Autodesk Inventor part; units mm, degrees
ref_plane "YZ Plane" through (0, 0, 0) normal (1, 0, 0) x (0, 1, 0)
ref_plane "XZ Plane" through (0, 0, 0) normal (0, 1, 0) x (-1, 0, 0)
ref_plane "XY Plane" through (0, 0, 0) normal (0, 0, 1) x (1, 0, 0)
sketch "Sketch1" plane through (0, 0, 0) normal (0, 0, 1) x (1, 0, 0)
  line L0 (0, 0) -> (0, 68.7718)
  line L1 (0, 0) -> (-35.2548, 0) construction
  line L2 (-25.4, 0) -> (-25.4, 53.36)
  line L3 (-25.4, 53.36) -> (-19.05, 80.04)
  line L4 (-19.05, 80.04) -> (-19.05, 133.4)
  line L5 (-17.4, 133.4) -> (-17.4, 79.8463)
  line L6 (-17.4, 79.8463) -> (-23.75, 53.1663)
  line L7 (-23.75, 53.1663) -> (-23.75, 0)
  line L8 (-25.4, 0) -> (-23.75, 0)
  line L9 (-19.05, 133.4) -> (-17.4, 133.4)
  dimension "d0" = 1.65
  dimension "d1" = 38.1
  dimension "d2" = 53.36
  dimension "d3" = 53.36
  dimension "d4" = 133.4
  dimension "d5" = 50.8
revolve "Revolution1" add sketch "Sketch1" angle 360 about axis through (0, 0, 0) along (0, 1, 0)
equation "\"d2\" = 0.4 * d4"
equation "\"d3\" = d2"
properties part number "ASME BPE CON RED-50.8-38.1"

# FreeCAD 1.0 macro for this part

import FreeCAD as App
import Part
import Sketcher
from FreeCAD import Vector
Q = App.Units.Quantity


def add_polygon(sketch, points):
    """Adds a closed chain of lines whose ends are joined by coincident constraints."""
    first, n = sketch.GeometryCount, len(points)
    for a, b in zip(points, points[1:] + points[:1]):
        sketch.addGeometry(Part.LineSegment(App.Vector(*a, 0), App.Vector(*b, 0)), False)
    for i in range(n):
        sketch.addConstraint(Sketcher.Constraint("Coincident", first + i, 2, first + (i + 1) % n, 1))

doc = App.newDocument("Part")
body = doc.addObject("PartDesign::Body", "Body")

sketch1 = body.newObject("Sketcher::SketchObject", "Sketch")
sketch1.AttachmentSupport = (doc.getObject("XY_Plane"), [""])
sketch1.MapMode = "FlatFace"
add_polygon(sketch1, [(-25.4, 53.4), (-25.4, 0), (-23.8, 0), (-23.8, 53.2), (-17.4, 79.8), (-17.4, 133.4), (-19.1, 133.4), (-19.1, 80)])
sketch1.addConstraint(Sketcher.Constraint("Vertical", 0))
sketch1.addConstraint(Sketcher.Constraint("Horizontal", 1))
sketch1.addConstraint(Sketcher.Constraint("Vertical", 2))
sketch1.addConstraint(Sketcher.Constraint("Vertical", 4))
sketch1.addConstraint(Sketcher.Constraint("Horizontal", 5))
sketch1.addConstraint(Sketcher.Constraint("Vertical", 6))
sketch1.addConstraint(Sketcher.Constraint("PointOnObject", 0, 2, -1))
sketch1.addConstraint(Sketcher.Constraint("Parallel", 3, 7))
sketch1.addConstraint(Sketcher.Constraint("Equal", 1, 5))
sketch1.addConstraint(Sketcher.Constraint("Equal", 0, 6))
sketch1.addConstraint(Sketcher.Constraint("DistanceX", 1, 1, 1, 2, Q("1.65 mm")))
sketch1.addConstraint(Sketcher.Constraint("DistanceY", 0, 2, 0, 1, Q("53.36 mm")))
sketch1.addConstraint(Sketcher.Constraint("DistanceY", -1, 1, 4, 2, Q("133.4 mm")))
sketch1.addConstraint(Sketcher.Constraint("DistanceX", 0, 2, 3, 2, Q("8 mm")))
sketch1.addConstraint(Sketcher.Constraint("DistanceX", 0, 2, -1, 1, Q("25.4 mm")))
sketch1.addConstraint(Sketcher.Constraint("DistanceY", 2, 1, 2, 2, Q("53.1663 mm")))
revolution = body.newObject("PartDesign::Revolution", "Revolution")
revolution.Profile = sketch1
revolution.ReferenceAxis = (sketch1, ["V_Axis"])
revolution.Angle = 360

doc.recompute()
